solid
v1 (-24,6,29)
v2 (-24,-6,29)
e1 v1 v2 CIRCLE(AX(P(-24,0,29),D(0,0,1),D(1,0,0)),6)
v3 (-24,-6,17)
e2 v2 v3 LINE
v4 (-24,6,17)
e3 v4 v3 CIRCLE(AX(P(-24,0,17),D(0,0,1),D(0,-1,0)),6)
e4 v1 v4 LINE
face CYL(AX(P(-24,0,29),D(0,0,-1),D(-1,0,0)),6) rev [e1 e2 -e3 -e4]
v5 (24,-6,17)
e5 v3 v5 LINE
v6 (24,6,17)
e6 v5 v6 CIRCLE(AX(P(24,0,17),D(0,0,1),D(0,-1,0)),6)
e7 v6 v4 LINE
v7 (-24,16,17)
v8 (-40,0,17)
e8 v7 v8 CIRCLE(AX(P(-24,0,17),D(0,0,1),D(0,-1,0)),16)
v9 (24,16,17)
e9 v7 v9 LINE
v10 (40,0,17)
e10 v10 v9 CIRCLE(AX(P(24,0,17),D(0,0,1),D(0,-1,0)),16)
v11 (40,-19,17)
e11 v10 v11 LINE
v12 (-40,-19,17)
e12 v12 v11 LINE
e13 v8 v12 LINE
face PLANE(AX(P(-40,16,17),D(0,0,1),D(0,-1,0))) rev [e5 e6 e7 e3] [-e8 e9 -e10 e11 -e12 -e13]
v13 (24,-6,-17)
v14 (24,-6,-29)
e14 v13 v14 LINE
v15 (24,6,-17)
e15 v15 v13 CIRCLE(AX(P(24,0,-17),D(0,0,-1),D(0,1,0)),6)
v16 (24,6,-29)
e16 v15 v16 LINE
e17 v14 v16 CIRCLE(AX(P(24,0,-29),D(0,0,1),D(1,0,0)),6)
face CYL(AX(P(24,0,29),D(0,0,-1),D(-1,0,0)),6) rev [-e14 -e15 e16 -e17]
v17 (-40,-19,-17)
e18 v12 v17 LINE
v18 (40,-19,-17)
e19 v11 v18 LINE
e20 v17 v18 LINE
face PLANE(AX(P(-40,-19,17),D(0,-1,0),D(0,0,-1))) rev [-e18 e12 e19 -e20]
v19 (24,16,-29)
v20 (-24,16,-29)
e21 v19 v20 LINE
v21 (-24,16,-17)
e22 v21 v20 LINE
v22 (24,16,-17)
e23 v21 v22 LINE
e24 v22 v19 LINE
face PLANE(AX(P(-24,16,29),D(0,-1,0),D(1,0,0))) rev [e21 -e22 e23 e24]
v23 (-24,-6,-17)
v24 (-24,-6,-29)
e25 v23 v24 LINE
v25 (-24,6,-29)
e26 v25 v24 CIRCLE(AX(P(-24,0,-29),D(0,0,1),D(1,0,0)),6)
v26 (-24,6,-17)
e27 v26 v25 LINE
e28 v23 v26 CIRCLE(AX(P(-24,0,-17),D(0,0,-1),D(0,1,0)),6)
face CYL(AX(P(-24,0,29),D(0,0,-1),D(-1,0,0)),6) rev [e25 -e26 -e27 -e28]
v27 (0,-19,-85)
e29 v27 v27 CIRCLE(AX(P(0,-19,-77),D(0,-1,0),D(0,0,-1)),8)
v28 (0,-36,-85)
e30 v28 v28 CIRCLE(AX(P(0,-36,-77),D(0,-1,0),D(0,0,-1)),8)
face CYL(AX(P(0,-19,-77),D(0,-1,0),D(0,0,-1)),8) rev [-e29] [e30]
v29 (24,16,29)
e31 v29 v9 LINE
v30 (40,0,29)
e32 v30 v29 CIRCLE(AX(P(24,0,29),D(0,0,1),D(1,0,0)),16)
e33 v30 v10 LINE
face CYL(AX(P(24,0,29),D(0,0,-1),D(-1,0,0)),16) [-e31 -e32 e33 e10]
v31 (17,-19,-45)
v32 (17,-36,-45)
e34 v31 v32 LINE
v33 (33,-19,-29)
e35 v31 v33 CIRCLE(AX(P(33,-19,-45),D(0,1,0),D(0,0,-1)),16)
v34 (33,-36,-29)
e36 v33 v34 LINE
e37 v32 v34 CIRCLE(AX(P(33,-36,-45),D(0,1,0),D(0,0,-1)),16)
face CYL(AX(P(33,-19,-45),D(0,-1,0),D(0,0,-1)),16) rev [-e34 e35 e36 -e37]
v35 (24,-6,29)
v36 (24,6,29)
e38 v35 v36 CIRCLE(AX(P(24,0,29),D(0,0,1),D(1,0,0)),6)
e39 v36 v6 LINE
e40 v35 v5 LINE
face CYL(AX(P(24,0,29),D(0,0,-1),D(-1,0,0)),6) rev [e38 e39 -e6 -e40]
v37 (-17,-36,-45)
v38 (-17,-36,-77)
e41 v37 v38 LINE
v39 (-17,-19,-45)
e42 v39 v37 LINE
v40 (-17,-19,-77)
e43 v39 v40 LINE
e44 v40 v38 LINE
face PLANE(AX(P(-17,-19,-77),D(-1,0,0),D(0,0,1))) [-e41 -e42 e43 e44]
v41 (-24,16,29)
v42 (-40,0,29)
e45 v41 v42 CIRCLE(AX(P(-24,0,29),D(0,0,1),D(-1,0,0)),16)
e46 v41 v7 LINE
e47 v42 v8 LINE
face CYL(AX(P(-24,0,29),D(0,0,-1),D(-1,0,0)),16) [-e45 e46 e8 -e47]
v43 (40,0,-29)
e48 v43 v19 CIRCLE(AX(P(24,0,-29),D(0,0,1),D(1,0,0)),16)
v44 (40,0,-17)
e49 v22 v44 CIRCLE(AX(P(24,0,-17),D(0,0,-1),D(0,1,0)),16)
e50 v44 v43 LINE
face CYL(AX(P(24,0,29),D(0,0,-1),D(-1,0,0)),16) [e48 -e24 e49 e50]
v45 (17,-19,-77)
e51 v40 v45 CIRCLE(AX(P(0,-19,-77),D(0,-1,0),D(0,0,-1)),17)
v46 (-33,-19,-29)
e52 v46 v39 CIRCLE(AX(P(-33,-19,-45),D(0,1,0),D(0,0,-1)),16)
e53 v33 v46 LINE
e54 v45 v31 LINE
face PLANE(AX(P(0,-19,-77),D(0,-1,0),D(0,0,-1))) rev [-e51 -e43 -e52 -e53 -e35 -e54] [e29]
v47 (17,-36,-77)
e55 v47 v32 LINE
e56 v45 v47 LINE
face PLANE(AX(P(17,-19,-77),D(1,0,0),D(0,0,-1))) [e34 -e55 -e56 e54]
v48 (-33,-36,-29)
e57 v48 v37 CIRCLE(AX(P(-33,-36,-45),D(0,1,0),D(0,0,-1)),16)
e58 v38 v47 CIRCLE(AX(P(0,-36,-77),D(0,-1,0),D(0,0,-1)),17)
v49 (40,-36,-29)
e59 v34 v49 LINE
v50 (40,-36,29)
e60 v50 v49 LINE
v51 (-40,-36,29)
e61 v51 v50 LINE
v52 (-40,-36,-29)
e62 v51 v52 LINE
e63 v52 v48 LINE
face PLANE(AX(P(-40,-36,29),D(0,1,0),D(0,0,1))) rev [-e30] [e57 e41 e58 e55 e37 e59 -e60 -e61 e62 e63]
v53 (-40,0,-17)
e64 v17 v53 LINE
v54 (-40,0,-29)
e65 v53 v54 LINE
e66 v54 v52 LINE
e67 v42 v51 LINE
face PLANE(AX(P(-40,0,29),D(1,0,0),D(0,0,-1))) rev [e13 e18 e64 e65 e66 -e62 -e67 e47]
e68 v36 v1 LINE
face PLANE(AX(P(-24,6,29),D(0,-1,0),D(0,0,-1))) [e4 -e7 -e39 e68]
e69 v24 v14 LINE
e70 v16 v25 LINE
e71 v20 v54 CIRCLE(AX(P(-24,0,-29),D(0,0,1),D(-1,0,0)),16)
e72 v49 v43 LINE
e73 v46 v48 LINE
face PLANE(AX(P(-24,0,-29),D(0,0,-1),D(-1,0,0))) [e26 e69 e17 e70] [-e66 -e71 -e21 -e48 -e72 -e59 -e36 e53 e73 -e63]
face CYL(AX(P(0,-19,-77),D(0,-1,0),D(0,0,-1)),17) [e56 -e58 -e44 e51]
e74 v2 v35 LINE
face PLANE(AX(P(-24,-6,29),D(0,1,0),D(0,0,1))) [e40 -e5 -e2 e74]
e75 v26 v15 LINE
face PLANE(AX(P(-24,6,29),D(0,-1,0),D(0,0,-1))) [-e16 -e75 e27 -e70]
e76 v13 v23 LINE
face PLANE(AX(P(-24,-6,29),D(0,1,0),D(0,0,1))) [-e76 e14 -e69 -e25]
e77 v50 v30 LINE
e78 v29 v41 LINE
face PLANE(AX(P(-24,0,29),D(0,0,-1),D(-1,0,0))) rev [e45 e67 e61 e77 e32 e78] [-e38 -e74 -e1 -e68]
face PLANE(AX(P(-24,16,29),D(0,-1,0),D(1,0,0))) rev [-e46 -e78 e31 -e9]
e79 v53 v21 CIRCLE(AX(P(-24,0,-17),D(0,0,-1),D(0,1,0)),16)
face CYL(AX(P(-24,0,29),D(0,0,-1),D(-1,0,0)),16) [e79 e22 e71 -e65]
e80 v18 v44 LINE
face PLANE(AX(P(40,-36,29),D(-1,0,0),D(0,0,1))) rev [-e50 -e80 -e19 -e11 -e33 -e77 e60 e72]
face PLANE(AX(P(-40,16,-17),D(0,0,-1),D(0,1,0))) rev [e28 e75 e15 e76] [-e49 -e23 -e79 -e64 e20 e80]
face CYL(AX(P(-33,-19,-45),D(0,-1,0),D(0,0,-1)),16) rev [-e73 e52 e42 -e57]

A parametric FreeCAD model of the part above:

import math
import FreeCAD as App
import Part
import Sketcher
Q = App.Units.Quantity

doc = App.newDocument("Part")
params = doc.addObject("Spreadsheet::Sheet", "Params")
for row, (alias, value) in enumerate([
    ("sketch1_radius", "16 mm"),
    ("sketch1_radius2", "6 mm"),
    ("sketch1_width", "48 mm"),
    ("sketch1_height", "36 mm"),
    ("pad1_length", "58 mm"),
    ("sketch2_width", "35 mm"),
    ("sketch2_height", "34 mm"),
    ("sketch3_diameter", "16 mm"),
    ("sketch3_radius", "17 mm"),
    ("sketch3_radius2", "16 mm"),
    ("sketch3_height", "32 mm"),
    ("pad2_length", "17 mm"),
], start=1):
    params.set(f"A{row}", alias)
    params.set(f"B{row}", "=" + value)
    params.setAlias(f"B{row}", alias)

body = doc.addObject("PartDesign::Body", "Body")

# Sketch on XY plane
sketch1 = doc.addObject("Sketcher::SketchObject", "Sketch")
body.addObject(sketch1)
sketch1.AttachmentSupport = (doc.XY_Plane, [""])
sketch1.MapMode = "FlatFace"
sketch1.addGeometry(Part.LineSegment(App.Vector(24, 16, 0), App.Vector(-24, 16, 0)), False)
sketch1.addGeometry(Part.ArcOfCircle(Part.Circle(App.Vector(-24, 0, 0), App.Vector(0, 0, 1), 16), math.radians(90), math.radians(180)), False)
sketch1.addGeometry(Part.LineSegment(App.Vector(-40, 0, 0), App.Vector(-40, -36, 0)), False)
sketch1.addGeometry(Part.LineSegment(App.Vector(-40, -36, 0), App.Vector(40, -36, 0)), False)
sketch1.addGeometry(Part.LineSegment(App.Vector(40, -36, 0), App.Vector(40, 0, 0)), False)
sketch1.addGeometry(Part.ArcOfCircle(Part.Circle(App.Vector(24, 0, 0), App.Vector(0, 0, 1), 16), math.radians(0), math.radians(90)), False)
sketch1.addGeometry(Part.LineSegment(App.Vector(-24, 6, 0), App.Vector(24, 6, 0)), False)
sketch1.addGeometry(Part.ArcOfCircle(Part.Circle(App.Vector(24, 0, 0), App.Vector(0, 0, 1), 6), math.radians(-90), math.radians(90)), False)
sketch1.addGeometry(Part.LineSegment(App.Vector(24, -6, 0), App.Vector(-24, -6, 0)), False)
sketch1.addGeometry(Part.ArcOfCircle(Part.Circle(App.Vector(-24, 0, 0), App.Vector(0, 0, 1), 6), math.radians(90), math.radians(270)), False)
sketch1.addConstraint(Sketcher.Constraint("Tangent", 0, 2, 1, 1))
sketch1.addConstraint(Sketcher.Constraint("Tangent", 1, 2, 2, 1))
sketch1.addConstraint(Sketcher.Constraint("Coincident", 2, 2, 3, 1))
sketch1.addConstraint(Sketcher.Constraint("Coincident", 3, 2, 4, 1))
sketch1.addConstraint(Sketcher.Constraint("Tangent", 4, 2, 5, 1))
sketch1.addConstraint(Sketcher.Constraint("Tangent", 5, 2, 0, 1))
sketch1.addConstraint(Sketcher.Constraint("Tangent", 6, 2, 7, 2))
sketch1.addConstraint(Sketcher.Constraint("Tangent", 7, 1, 8, 1))
sketch1.addConstraint(Sketcher.Constraint("Tangent", 8, 2, 9, 2))
sketch1.addConstraint(Sketcher.Constraint("Tangent", 9, 1, 6, 1))
sketch1.addConstraint(Sketcher.Constraint("Horizontal", 0))
sketch1.addConstraint(Sketcher.Constraint("Vertical", 2))
sketch1.addConstraint(Sketcher.Constraint("Horizontal", 3))
sketch1.addConstraint(Sketcher.Constraint("Vertical", 4))
sketch1.addConstraint(Sketcher.Constraint("Horizontal", 6))
sketch1.addConstraint(Sketcher.Constraint("Horizontal", 8))
sketch1.addConstraint(Sketcher.Constraint("Coincident", 7, 3, 5, 3))
sketch1.addConstraint(Sketcher.Constraint("Coincident", 9, 3, 1, 3))
sketch1.addConstraint(Sketcher.Constraint("Symmetric", 1, 3, 5, 3, -1, 1))
sketch1.addConstraint(Sketcher.Constraint("Radius", 1, Q("16 mm")))
sketch1.addConstraint(Sketcher.Constraint("Radius", 7, Q("6 mm")))
sketch1.addConstraint(Sketcher.Constraint("DistanceX", 0, 2, 0, 1, Q("48 mm")))
sketch1.addConstraint(Sketcher.Constraint("DistanceY", 2, 2, 2, 1, Q("36 mm")))
sketch1.setExpression("Constraints[19]", "Params.sketch1_radius")
sketch1.setExpression("Constraints[20]", "Params.sketch1_radius2")
sketch1.setExpression("Constraints[21]", "Params.sketch1_width")
sketch1.setExpression("Constraints[22]", "Params.sketch1_height")
pad1 = doc.addObject("PartDesign::Pad", "Pad")
body.addObject(pad1)
pad1.Profile = sketch1
pad1.setExpression("Length", "Params.pad1_length")
pad1.Midplane = True

# Sketch on YZ plane
sketch2 = doc.addObject("Sketcher::SketchObject", "Sketch001")
body.addObject(sketch2)
sketch2.AttachmentSupport = (doc.YZ_Plane, [""])
sketch2.MapMode = "FlatFace"
sketch2.addGeometry(Part.LineSegment(App.Vector(16, 17, 0), App.Vector(-19, 17, 0)), False)
sketch2.addGeometry(Part.LineSegment(App.Vector(-19, 17, 0), App.Vector(-19, -17, 0)), False)
sketch2.addGeometry(Part.LineSegment(App.Vector(-19, -17, 0), App.Vector(16, -17, 0)), False)
sketch2.addGeometry(Part.LineSegment(App.Vector(16, -17, 0), App.Vector(16, 17, 0)), False)
sketch2.addConstraint(Sketcher.Constraint("Coincident", 0, 2, 1, 1))
sketch2.addConstraint(Sketcher.Constraint("Coincident", 1, 2, 2, 1))
sketch2.addConstraint(Sketcher.Constraint("Coincident", 2, 2, 3, 1))
sketch2.addConstraint(Sketcher.Constraint("Coincident", 3, 2, 0, 1))
sketch2.addConstraint(Sketcher.Constraint("Horizontal", 0))
sketch2.addConstraint(Sketcher.Constraint("Vertical", 1))
sketch2.addConstraint(Sketcher.Constraint("Horizontal", 2))
sketch2.addConstraint(Sketcher.Constraint("Vertical", 3))
sketch2.addConstraint(Sketcher.Constraint("DistanceX", 0, 2, 0, 1, Q("35 mm")))
sketch2.addConstraint(Sketcher.Constraint("DistanceY", 1, 2, 1, 1, Q("34 mm")))
sketch2.addConstraint(Sketcher.Constraint("DistanceX", 0, 2, -1, 1, Q("19 mm")))
sketch2.addConstraint(Sketcher.Constraint("DistanceY", -1, 1, 0, 2, Q("17 mm")))
sketch2.setExpression("Constraints[8]", "Params.sketch2_width")
sketch2.setExpression("Constraints[9]", "Params.sketch2_height")
pocket1 = doc.addObject("PartDesign::Pocket", "Pocket")
body.addObject(pocket1)
pocket1.Profile = sketch2
pocket1.Type = "ThroughAll"
pocket1.Midplane = True

# Sketch on XZ plane
sketch3 = doc.addObject("Sketcher::SketchObject", "Sketch002")
body.addObject(sketch3)
sketch3.AttachmentSupport = (doc.XZ_Plane, [""])
sketch3.MapMode = "FlatFace"
sketch3.AttachmentOffset = App.Placement(App.Vector(0, 0, 36), App.Rotation())
sketch3.addGeometry(Part.LineSegment(App.Vector(-17, -45, 0), App.Vector(-17, -77, 0)), False)
sketch3.addGeometry(Part.ArcOfCircle(Part.Circle(App.Vector(0, -77, 0), App.Vector(0, 0, 1), 17), math.radians(180), math.radians(360)), False)
sketch3.addGeometry(Part.LineSegment(App.Vector(17, -77, 0), App.Vector(17, -45, 0)), False)
sketch3.addGeometry(Part.ArcOfCircle(Part.Circle(App.Vector(33, -45, 0), App.Vector(0, 0, 1), 16), math.radians(90), math.radians(180)), False)
sketch3.addGeometry(Part.LineSegment(App.Vector(33, -29, 0), App.Vector(-33, -29, 0)), False)
sketch3.addGeometry(Part.ArcOfCircle(Part.Circle(App.Vector(-33, -45, 0), App.Vector(0, 0, 1), 16), math.radians(0), math.radians(90)), False)
sketch3.addGeometry(Part.Circle(App.Vector(0, -77, 0), App.Vector(0, 0, 1), 8), False)
sketch3.addConstraint(Sketcher.Constraint("Tangent", 0, 2, 1, 1))
sketch3.addConstraint(Sketcher.Constraint("Tangent", 1, 2, 2, 1))
sketch3.addConstraint(Sketcher.Constraint("Tangent", 2, 2, 3, 2))
sketch3.addConstraint(Sketcher.Constraint("Tangent", 3, 1, 4, 1))
sketch3.addConstraint(Sketcher.Constraint("Tangent", 4, 2, 5, 2))
sketch3.addConstraint(Sketcher.Constraint("Tangent", 5, 1, 0, 1))
sketch3.addConstraint(Sketcher.Constraint("Vertical", 0))
sketch3.addConstraint(Sketcher.Constraint("Vertical", 2))
sketch3.addConstraint(Sketcher.Constraint("Horizontal", 4))
sketch3.addConstraint(Sketcher.Constraint("Coincident", 6, 3, 1, 3))
sketch3.addConstraint(Sketcher.Constraint("Equal", 3, 5))
sketch3.addConstraint(Sketcher.Constraint("PointOnObject", 1, 3, -2))
sketch3.addConstraint(Sketcher.Constraint("Diameter", 6, Q("16 mm")))
sketch3.addConstraint(Sketcher.Constraint("Radius", 1, Q("17 mm")))
sketch3.addConstraint(Sketcher.Constraint("Radius", 3, Q("16 mm")))
sketch3.addConstraint(Sketcher.Constraint("DistanceY", 0, 2, 0, 1, Q("32 mm")))
sketch3.addConstraint(Sketcher.Constraint("DistanceY", 1, 3, -1, 1, Q("77 mm")))
sketch3.setExpression("Constraints[12]", "Params.sketch3_diameter")
sketch3.setExpression("Constraints[13]", "Params.sketch3_radius")
sketch3.setExpression("Constraints[14]", "Params.sketch3_radius2")
sketch3.setExpression("Constraints[15]", "Params.sketch3_height")
pad2 = doc.addObject("PartDesign::Pad", "Pad001")
body.addObject(pad2)
pad2.Profile = sketch3
pad2.setExpression("Length", "Params.pad2_length")
pad2.Reversed = True

doc.recompute()
